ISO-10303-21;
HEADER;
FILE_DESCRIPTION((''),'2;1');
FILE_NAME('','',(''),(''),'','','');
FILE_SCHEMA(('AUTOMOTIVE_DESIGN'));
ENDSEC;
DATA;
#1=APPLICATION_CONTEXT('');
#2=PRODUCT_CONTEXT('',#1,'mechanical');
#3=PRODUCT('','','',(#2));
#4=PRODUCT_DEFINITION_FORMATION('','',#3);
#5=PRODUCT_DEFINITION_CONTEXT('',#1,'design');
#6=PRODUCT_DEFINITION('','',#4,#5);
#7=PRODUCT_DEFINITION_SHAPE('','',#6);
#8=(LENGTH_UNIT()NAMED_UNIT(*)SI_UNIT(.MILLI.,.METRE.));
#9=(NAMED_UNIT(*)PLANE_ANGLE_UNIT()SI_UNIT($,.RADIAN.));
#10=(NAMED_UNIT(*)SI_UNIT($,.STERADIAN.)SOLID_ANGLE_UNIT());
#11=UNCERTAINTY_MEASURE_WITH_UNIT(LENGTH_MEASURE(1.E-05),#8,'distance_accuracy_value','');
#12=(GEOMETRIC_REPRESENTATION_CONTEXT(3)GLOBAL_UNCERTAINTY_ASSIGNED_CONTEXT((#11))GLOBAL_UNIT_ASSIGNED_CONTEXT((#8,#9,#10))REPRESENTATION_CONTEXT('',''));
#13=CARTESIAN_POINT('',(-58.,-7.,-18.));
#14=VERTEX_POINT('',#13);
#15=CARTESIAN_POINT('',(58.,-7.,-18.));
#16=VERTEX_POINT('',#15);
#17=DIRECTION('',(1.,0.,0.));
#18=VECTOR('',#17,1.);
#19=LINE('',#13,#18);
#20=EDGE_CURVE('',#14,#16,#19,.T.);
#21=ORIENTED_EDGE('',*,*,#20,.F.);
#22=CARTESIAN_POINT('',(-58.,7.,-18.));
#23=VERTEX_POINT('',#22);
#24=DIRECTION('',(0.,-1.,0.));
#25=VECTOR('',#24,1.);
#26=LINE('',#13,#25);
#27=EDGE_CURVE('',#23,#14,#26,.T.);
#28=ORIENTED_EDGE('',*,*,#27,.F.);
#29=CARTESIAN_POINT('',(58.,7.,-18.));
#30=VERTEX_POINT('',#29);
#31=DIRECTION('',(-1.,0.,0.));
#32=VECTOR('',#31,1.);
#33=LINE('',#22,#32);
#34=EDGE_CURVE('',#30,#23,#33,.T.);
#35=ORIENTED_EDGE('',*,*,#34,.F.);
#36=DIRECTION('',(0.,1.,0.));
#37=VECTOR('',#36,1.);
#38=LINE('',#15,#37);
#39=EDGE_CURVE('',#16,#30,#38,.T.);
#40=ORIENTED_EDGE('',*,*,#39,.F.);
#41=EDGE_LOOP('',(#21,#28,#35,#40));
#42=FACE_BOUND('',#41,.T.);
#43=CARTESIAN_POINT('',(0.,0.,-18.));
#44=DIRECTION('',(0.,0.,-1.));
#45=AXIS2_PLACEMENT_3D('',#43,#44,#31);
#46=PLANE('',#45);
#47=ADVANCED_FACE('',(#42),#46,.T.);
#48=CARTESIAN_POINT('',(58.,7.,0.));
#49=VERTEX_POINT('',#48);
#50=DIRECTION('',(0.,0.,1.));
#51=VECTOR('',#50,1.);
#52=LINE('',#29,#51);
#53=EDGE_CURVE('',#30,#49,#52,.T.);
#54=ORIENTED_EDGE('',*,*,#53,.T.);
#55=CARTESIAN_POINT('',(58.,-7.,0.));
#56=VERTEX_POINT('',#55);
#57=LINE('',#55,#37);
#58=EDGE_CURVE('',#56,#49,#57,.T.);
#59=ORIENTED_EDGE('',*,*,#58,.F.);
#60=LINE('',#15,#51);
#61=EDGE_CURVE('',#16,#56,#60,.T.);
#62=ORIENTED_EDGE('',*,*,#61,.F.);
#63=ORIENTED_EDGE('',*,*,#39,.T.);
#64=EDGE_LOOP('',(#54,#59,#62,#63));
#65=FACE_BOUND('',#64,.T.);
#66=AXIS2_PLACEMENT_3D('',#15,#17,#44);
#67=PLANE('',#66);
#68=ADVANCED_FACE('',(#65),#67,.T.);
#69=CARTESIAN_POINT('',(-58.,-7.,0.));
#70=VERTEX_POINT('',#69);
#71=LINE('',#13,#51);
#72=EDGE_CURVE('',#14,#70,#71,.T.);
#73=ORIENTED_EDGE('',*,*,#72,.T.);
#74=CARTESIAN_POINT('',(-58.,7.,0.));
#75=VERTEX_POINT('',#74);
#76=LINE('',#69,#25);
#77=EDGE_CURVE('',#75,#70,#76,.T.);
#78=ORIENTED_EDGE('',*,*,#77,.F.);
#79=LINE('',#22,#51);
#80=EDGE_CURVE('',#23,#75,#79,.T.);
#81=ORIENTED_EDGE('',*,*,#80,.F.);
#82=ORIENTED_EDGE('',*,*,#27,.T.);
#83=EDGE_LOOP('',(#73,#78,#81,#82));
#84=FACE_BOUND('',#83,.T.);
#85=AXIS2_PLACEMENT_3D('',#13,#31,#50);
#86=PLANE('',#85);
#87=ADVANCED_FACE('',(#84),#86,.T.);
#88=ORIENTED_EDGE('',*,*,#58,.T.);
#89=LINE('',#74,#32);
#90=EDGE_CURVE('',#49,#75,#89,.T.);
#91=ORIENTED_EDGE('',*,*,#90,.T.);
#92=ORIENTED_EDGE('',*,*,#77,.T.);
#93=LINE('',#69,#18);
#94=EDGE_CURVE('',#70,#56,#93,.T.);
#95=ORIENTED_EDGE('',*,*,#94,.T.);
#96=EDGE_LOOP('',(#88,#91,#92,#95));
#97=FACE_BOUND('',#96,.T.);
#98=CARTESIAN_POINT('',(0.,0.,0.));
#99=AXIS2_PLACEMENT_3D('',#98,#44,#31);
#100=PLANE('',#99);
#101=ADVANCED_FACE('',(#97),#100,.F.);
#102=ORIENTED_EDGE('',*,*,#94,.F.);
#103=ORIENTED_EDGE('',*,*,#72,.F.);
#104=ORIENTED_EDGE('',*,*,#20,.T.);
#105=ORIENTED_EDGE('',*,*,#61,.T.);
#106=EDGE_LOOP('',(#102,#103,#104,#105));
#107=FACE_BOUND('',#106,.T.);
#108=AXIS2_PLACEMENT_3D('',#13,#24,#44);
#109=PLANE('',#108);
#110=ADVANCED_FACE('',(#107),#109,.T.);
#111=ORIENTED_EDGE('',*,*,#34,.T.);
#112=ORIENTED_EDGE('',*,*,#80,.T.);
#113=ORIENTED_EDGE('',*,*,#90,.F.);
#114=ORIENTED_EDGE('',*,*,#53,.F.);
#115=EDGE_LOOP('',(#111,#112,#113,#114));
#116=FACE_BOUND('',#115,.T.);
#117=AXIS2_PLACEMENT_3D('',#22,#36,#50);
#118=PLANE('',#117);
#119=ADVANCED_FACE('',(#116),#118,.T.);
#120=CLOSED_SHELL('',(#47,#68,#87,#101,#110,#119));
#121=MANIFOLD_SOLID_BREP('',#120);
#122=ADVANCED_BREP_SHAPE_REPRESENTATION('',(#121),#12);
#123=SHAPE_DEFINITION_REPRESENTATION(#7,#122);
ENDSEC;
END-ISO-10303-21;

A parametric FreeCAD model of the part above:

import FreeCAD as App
import Part
import Sketcher
from FreeCAD import Vector


def add_polygon(sketch, points):
    """Adds a closed chain of lines whose ends are joined by coincident constraints."""
    first, n = sketch.GeometryCount, len(points)
    for a, b in zip(points, points[1:] + points[:1]):
        sketch.addGeometry(Part.LineSegment(App.Vector(*a, 0), App.Vector(*b, 0)), False)
    for i in range(n):
        sketch.addConstraint(Sketcher.Constraint("Coincident", first + i, 2, first + (i + 1) % n, 1))

doc = App.newDocument("Part")
body = doc.addObject("PartDesign::Body", "Body")

# Sketch on XY plane
sketch1 = body.newObject("Sketcher::SketchObject", "Sketch")
sketch1.AttachmentSupport = (doc.getObject("XY_Plane"), [""])
sketch1.MapMode = "FlatFace"
add_polygon(sketch1, [(-58, 7), (-58, -7), (58, -7), (58, 7)])  # lines 0-3
sketch1.addConstraint([
    Sketcher.Constraint("Vertical", 0),
    Sketcher.Constraint("Horizontal", 1),
    Sketcher.Constraint("Vertical", 2),
    Sketcher.Constraint("Horizontal", 3),
    Sketcher.Constraint("Symmetric", 0, 2, 2, 2, -1, 1),
    Sketcher.Constraint("DistanceX", 1, 1, 1, 2, 116.0),
    Sketcher.Constraint("DistanceY", 0, 2, 0, 1, 14.0),
])
pad1 = body.newObject("PartDesign::Pad", "Pad")
pad1.Profile = sketch1
pad1.Length = 18
pad1.Reversed = True

doc.recompute()
